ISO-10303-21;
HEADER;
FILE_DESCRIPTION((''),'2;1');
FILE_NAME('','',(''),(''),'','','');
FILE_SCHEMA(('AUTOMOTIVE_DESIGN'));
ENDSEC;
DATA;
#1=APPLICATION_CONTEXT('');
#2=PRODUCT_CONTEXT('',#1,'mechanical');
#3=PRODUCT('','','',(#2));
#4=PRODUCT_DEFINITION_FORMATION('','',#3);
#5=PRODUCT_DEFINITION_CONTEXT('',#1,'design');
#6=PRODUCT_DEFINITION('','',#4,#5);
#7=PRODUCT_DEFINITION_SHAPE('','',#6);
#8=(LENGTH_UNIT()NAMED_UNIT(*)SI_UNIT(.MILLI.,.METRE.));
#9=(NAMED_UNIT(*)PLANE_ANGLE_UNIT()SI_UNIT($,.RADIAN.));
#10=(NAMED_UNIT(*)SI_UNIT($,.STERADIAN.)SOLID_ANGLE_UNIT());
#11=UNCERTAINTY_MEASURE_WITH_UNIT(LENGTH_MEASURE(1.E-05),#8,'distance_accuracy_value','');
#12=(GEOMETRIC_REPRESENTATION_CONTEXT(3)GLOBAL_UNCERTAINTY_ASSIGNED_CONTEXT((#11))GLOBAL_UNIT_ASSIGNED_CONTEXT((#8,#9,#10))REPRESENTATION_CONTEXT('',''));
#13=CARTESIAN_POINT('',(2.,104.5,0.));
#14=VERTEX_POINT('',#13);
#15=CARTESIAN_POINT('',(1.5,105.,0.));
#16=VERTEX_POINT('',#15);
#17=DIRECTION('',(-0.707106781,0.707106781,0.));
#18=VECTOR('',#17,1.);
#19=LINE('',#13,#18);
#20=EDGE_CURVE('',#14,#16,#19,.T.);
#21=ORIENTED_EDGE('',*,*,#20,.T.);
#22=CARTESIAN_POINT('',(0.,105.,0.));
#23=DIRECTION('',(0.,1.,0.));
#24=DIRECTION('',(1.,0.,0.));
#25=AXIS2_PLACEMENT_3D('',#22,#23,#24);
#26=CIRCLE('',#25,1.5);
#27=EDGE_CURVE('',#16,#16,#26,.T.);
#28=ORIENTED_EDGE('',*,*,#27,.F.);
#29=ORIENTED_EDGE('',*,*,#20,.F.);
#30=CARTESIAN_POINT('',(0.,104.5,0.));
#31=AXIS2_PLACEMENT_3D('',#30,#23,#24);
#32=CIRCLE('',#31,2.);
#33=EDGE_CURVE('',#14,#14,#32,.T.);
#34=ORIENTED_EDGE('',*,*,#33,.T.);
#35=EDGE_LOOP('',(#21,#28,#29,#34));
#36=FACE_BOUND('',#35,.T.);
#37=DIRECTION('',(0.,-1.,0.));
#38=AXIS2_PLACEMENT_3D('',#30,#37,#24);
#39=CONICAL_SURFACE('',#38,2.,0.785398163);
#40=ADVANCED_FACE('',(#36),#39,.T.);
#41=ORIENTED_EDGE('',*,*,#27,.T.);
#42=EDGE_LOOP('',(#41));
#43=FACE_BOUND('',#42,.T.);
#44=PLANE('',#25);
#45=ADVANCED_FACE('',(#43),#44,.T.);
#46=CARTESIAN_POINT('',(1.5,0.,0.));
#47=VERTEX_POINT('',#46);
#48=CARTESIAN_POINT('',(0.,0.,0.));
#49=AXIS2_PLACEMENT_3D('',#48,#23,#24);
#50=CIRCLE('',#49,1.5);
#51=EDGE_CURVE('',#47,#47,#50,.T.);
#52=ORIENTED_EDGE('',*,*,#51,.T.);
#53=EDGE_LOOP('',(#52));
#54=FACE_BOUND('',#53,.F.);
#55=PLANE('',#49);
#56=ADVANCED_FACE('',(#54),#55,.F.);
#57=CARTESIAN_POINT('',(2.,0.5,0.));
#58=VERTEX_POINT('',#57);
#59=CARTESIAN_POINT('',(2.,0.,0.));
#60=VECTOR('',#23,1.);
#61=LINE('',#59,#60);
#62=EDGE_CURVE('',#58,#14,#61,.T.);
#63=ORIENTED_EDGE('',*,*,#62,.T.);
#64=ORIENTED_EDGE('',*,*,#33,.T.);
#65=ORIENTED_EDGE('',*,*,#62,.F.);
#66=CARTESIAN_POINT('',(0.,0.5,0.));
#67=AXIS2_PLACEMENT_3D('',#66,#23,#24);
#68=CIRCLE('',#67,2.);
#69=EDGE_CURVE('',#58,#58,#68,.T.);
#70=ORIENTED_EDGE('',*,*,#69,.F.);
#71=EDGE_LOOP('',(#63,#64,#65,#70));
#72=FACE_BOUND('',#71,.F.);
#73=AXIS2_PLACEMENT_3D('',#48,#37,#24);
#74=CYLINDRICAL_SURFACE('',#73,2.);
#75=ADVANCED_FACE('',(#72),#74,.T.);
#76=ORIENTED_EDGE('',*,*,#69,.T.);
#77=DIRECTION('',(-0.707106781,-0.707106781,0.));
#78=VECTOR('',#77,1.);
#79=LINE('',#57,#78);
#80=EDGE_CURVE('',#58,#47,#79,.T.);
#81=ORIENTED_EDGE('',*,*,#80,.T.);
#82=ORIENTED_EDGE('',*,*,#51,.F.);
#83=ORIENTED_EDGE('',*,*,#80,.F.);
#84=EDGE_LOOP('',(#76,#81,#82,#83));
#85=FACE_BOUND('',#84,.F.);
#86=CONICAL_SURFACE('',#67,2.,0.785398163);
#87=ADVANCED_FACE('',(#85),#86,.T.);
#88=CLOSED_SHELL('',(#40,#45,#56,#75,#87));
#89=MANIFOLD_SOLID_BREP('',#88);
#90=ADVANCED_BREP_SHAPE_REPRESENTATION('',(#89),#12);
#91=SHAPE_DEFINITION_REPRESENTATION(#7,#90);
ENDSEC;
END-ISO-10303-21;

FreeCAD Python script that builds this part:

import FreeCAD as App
import Part
import Sketcher
from FreeCAD import Vector
Q = App.Units.Quantity


def edges_at(feature, points):
    """Names of the edges that pass closest to the given points."""
    edges = feature.Shape.Edges
    near = lambda p: min(range(len(edges)), key=lambda i: edges[i].distToShape(Part.Vertex(*p))[0])
    return sorted({f"Edge{near(p) + 1}" for p in points})

doc = App.newDocument("Part")
params = doc.addObject("Spreadsheet::Sheet", "Params")
for row, (alias, value) in enumerate([
    ("sketch1_diameter", "4 mm"),
    ("pad1_length", "105 mm"),
    ("chamfer_size", "0.5 mm"),
], start=1):
    params.set(f"A{row}", alias)
    params.set(f"B{row}", "=" + value)
    params.setAlias(f"B{row}", alias)

body = doc.addObject("PartDesign::Body", "Body")

# Sketch on XZ plane
sketch1 = doc.addObject("Sketcher::SketchObject", "Sketch")
body.addObject(sketch1)
sketch1.AttachmentSupport = (doc.XZ_Plane, [""])
sketch1.MapMode = "FlatFace"
sketch1.addGeometry(Part.Circle(Vector(0, 0, 0), Vector(0, 0, 1), 2), False)
sketch1.addConstraint([
    Sketcher.Constraint("Coincident", 0, 3, -1, 1),
    Sketcher.Constraint("Diameter", 0, Q("4 mm")),
])
sketch1.setExpression("Constraints[1]", "Params.sketch1_diameter")
pad1 = doc.addObject("PartDesign::Pad", "Pad")
body.addObject(pad1)
pad1.Profile = sketch1
pad1.setExpression("Length", "Params.pad1_length")
pad1.Reversed = True
doc.recompute()

chamfer = doc.addObject("PartDesign::Chamfer", "Chamfer")
body.addObject(chamfer)
chamfer.Base = (pad1, edges_at(pad1, [(-2, 0, 0), (-2, 105, 0)]))
chamfer.setExpression("Size", "Params.chamfer_size")

doc.recompute()
